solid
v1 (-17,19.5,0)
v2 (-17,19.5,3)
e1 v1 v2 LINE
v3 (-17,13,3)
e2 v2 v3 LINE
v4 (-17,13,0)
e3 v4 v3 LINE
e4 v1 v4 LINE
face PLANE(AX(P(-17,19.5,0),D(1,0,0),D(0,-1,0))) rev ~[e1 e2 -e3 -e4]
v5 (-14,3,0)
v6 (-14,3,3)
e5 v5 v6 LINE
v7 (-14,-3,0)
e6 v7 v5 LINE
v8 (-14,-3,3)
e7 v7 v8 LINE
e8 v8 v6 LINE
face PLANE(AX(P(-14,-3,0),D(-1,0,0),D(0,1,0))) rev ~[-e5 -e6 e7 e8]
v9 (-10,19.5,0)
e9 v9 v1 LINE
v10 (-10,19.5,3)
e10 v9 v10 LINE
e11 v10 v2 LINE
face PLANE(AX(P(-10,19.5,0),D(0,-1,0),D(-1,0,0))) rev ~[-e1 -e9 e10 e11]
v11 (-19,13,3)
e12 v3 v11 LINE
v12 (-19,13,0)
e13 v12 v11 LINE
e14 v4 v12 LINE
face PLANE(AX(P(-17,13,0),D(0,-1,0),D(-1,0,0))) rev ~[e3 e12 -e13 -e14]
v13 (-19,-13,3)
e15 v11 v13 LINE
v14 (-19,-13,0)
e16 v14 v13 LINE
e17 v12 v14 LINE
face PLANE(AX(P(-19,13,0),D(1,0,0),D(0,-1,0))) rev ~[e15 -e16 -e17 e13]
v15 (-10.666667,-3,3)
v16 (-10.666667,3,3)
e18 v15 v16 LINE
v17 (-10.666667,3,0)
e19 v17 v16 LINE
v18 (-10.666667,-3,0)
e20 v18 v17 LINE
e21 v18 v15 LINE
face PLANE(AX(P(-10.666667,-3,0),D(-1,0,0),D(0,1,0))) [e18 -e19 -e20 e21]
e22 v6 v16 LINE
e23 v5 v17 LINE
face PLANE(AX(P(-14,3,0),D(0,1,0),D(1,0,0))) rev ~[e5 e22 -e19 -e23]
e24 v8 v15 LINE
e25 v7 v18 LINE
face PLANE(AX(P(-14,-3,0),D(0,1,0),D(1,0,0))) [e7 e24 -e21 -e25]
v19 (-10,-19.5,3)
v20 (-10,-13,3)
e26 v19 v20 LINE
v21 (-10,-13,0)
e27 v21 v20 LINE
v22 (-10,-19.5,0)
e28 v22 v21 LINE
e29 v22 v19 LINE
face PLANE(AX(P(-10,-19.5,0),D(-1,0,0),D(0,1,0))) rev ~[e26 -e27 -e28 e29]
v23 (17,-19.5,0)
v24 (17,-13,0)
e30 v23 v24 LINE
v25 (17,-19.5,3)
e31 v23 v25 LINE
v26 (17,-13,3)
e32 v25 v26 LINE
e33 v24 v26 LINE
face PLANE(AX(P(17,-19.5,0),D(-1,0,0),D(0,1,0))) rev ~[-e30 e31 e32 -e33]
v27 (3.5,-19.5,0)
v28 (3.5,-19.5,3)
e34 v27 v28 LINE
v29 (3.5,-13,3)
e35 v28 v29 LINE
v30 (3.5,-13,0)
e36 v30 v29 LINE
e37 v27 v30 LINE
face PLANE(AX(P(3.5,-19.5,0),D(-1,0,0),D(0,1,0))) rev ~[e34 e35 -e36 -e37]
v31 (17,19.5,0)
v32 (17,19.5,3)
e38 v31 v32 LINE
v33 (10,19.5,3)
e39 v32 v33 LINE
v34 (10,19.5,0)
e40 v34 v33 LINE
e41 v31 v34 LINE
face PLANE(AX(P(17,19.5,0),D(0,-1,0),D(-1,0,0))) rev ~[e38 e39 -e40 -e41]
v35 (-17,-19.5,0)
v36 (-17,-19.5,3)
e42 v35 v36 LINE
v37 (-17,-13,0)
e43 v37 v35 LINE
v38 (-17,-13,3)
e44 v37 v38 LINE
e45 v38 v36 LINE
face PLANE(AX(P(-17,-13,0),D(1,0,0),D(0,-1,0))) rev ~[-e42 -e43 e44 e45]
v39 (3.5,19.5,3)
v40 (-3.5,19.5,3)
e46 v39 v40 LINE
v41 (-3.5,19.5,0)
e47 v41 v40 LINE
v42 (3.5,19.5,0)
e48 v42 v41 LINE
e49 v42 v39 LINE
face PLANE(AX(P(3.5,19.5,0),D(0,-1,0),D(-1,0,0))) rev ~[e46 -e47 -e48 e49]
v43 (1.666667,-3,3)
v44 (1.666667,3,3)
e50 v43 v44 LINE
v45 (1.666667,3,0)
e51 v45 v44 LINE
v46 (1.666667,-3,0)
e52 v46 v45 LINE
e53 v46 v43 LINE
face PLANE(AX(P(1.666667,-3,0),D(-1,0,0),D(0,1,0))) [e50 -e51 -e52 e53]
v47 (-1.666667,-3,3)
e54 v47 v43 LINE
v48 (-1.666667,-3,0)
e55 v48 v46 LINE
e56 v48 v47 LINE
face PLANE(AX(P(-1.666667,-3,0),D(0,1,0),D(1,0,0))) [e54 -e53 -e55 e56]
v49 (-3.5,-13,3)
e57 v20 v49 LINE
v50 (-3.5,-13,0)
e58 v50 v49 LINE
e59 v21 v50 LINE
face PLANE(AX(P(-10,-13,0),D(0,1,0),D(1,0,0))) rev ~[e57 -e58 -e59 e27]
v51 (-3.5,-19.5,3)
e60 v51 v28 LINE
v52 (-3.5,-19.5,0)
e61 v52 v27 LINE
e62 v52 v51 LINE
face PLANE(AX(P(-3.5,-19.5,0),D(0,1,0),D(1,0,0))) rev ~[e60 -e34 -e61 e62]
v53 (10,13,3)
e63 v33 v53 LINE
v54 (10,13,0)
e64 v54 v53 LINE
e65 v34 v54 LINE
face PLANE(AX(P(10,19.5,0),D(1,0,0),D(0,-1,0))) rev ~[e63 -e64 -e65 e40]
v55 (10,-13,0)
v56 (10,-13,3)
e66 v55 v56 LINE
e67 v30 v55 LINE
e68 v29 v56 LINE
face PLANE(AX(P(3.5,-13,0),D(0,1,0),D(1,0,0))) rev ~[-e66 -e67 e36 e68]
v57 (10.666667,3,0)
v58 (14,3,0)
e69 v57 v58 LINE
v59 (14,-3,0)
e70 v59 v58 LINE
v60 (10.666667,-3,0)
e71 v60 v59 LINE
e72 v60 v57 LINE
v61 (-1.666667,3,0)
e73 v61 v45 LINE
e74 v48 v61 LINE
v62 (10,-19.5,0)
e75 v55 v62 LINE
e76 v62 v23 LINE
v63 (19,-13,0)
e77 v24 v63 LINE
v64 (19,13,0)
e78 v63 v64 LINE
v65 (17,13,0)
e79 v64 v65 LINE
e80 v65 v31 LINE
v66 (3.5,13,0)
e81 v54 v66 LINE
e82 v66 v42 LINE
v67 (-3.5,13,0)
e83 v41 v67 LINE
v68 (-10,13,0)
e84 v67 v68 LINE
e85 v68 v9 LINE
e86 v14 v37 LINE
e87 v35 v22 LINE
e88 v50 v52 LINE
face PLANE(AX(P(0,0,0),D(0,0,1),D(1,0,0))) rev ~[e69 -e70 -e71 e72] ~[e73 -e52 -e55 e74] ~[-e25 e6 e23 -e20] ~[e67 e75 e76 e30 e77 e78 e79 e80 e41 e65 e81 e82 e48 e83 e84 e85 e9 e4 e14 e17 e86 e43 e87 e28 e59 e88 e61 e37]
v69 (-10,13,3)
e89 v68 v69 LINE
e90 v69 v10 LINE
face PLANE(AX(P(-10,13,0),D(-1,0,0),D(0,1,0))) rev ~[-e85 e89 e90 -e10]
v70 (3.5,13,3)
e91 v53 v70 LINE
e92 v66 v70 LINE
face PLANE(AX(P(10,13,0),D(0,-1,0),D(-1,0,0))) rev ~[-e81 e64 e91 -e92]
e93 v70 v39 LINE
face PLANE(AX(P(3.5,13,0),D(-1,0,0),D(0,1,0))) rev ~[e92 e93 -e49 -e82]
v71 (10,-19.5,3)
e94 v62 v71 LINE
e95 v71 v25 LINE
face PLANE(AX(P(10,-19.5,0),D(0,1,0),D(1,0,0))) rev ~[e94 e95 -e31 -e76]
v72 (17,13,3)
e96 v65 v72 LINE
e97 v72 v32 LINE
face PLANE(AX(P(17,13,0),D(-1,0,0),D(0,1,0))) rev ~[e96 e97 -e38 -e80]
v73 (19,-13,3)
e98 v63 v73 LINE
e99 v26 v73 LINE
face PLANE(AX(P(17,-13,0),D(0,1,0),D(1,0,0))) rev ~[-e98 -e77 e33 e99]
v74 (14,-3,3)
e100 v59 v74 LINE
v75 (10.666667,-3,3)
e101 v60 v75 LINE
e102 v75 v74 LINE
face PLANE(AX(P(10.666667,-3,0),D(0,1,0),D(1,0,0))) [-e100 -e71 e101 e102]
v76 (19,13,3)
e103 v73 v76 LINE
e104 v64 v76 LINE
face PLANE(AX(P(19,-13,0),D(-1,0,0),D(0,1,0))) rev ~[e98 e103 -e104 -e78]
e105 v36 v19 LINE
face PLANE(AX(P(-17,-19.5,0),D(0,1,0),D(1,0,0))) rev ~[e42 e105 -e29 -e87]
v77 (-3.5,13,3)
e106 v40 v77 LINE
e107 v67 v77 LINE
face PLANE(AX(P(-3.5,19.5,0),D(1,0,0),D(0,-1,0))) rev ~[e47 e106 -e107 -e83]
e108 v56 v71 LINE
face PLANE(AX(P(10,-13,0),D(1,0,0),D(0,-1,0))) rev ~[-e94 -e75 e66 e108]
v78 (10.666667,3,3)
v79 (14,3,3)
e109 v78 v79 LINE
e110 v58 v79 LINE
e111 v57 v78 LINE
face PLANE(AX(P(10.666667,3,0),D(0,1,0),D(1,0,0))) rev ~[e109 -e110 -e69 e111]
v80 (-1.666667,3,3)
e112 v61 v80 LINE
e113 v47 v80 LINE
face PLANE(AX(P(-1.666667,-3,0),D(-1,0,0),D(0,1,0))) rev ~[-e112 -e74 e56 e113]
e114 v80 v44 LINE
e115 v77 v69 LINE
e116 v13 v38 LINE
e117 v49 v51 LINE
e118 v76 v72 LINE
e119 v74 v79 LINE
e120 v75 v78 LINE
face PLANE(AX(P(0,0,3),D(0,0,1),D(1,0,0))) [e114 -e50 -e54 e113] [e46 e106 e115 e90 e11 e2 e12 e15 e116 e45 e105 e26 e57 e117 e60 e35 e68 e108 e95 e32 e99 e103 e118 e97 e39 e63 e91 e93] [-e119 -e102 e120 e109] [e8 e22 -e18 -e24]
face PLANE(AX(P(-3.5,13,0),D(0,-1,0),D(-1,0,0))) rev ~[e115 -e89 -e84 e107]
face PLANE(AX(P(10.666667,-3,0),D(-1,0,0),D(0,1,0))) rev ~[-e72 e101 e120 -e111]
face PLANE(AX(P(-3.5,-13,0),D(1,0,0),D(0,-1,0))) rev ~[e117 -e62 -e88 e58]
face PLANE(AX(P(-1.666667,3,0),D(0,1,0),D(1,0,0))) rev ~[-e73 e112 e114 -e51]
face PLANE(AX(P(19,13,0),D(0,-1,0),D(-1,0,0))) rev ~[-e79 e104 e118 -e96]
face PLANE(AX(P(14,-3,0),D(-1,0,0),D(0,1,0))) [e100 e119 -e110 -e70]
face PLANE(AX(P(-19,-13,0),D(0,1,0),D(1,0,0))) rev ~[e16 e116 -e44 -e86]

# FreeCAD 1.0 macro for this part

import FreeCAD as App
import Part
import Sketcher


def add_polygon(sketch, points):
    """Adds a closed chain of lines whose ends are joined by coincident constraints."""
    first, n = sketch.GeometryCount, len(points)
    for a, b in zip(points, points[1:] + points[:1]):
        sketch.addGeometry(Part.LineSegment(App.Vector(*a, 0), App.Vector(*b, 0)), False)
    for i in range(n):
        sketch.addConstraint(Sketcher.Constraint("Coincident", first + i, 2, first + (i + 1) % n, 1))

doc = App.newDocument("Part")
params = doc.addObject("Spreadsheet::Sheet", "Params")
for row, (alias, value) in enumerate([
    ("sketch1_width", "2 mm"),
    ("sketch1_width2", "7 mm"),
    ("sketch1_height", "26 mm"),
    ("sketch1_height2", "6 mm"),
    ("sketch1_width3", "6.5 mm"),
    ("pad1_length", "3 mm"),
], start=1):
    params.set(f"A{row}", alias)
    params.set(f"B{row}", "=" + value)
    params.setAlias(f"B{row}", alias)

body = doc.addObject("PartDesign::Body", "Body")

# Sketch on XY plane
sketch1 = body.newObject("Sketcher::SketchObject", "Sketch")
sketch1.AttachmentSupport = (doc.getObject("XY_Plane"), [""])
sketch1.MapMode = "FlatFace"
add_polygon(sketch1, [(-17, 19.5), (-17, 13), (-19, 13), (-19, -13), (-17, -13), (-17, -19.5), (-10, -19.5), (-10, -13), (-3.5, -13), (-3.5, -19.5), (3.5, -19.5), (3.5, -13), (10, -13), (10, -19.5), (17, -19.5), (17, -13), (19, -13), (19, 13), (17, 13), (17, 19.5), (10, 19.5), (10, 13), (3.5, 13), (3.5, 19.5), (-3.5, 19.5), (-3.5, 13), (-10, 13), (-10, 19.5)])  # lines 0-27
add_polygon(sketch1, [(-10.7, -3), (-14, -3), (-14, 3), (-10.7, 3)])  # lines 28-31
add_polygon(sketch1, [(1.7, -3), (-1.7, -3), (-1.7, 3), (1.7, 3)])  # lines 32-35
add_polygon(sketch1, [(14, -3), (10.7, -3), (10.7, 3), (14, 3)])  # lines 36-39
sketch1.addConstraint([
    Sketcher.Constraint("Vertical", 0),
    Sketcher.Constraint("Horizontal", 1),
    Sketcher.Constraint("Vertical", 2),
    Sketcher.Constraint("Horizontal", 3),
    Sketcher.Constraint("Vertical", 4),
    Sketcher.Constraint("Horizontal", 5),
    Sketcher.Constraint("Vertical", 6),
    Sketcher.Constraint("Horizontal", 7),
    Sketcher.Constraint("Vertical", 8),
    Sketcher.Constraint("Horizontal", 9),
    Sketcher.Constraint("Vertical", 10),
    Sketcher.Constraint("Horizontal", 11),
    Sketcher.Constraint("Vertical", 12),
    Sketcher.Constraint("Horizontal", 13),
    Sketcher.Constraint("Vertical", 14),
    Sketcher.Constraint("Horizontal", 15),
    Sketcher.Constraint("Vertical", 16),
    Sketcher.Constraint("Horizontal", 17),
    Sketcher.Constraint("Vertical", 18),
    Sketcher.Constraint("Horizontal", 19),
    Sketcher.Constraint("Vertical", 20),
    Sketcher.Constraint("Horizontal", 21),
    Sketcher.Constraint("Vertical", 22),
    Sketcher.Constraint("Horizontal", 23),
    Sketcher.Constraint("Vertical", 24),
    Sketcher.Constraint("Horizontal", 25),
    Sketcher.Constraint("Vertical", 26),
    Sketcher.Constraint("Horizontal", 27),
    Sketcher.Constraint("Horizontal", 28),
    Sketcher.Constraint("Vertical", 29),
    Sketcher.Constraint("Horizontal", 30),
    Sketcher.Constraint("Vertical", 31),
    Sketcher.Constraint("Horizontal", 32),
    Sketcher.Constraint("Vertical", 33),
    Sketcher.Constraint("Horizontal", 34),
    Sketcher.Constraint("Vertical", 35),
    Sketcher.Constraint("Horizontal", 36),
    Sketcher.Constraint("Vertical", 37),
    Sketcher.Constraint("Horizontal", 38),
    Sketcher.Constraint("Vertical", 39),
    Sketcher.Constraint("Symmetric", 0, 2, 14, 2, -1, 1),
    Sketcher.Constraint("Symmetric", 2, 2, 16, 2, -1, 1),
    Sketcher.Constraint("Symmetric", 4, 2, 18, 2, -1, 1),
    Sketcher.Constraint("Symmetric", 6, 2, 20, 2, -1, 1),
    Sketcher.Constraint("Symmetric", 8, 2, 22, 2, -1, 1),
    Sketcher.Constraint("Symmetric", 10, 2, 24, 2, -1, 1),
    Sketcher.Constraint("Symmetric", 12, 2, 26, 2, -1, 1),
    Sketcher.Constraint("Symmetric", 32, 2, 34, 2, -1, 1),
    Sketcher.Constraint("Symmetric", 30, 2, 36, 2, -1, 1),
    Sketcher.Constraint("Symmetric", 28, 2, 38, 2, -1, 1),
    Sketcher.Constraint("Symmetric", 7, 2, 10, 2, -2),
    Sketcher.Constraint("Symmetric", 5, 2, 12, 2, -2),
    Sketcher.Constraint("Symmetric", 3, 2, 14, 2, -2),
    Sketcher.Constraint("Horizontal", 3, 2, 6, 2),
    Sketcher.Constraint("Horizontal", 5, 2, 8, 2),
    Sketcher.Constraint("Horizontal", 31, 2, 32, 2),
    Sketcher.Constraint("Horizontal", 30, 2, 33, 2),
    Sketcher.Constraint("Equal", 5, 9),
    Sketcher.Constraint("Equal", 30, 32),
    Sketcher.Constraint("Equal", 25, 0),
    Sketcher.Constraint("DistanceX", 1, 2, 1, 1, 2.0),
    Sketcher.Constraint("DistanceX", 5, 1, 5, 2, 7.0),
    Sketcher.Constraint("DistanceY", 2, 2, 2, 1, 26.0),
    Sketcher.Constraint("DistanceY", 29, 1, 29, 2, 6.0),
    Sketcher.Constraint("DistanceX", 7, 1, 7, 2, 6.5),
    Sketcher.Constraint("DistanceX", 28, 2, -1, 1, 14.0),
    Sketcher.Constraint("DistanceX", 31, 2, 32, 2, 9.0),
])
sketch1.setExpression("Constraints[100]", "Params.sketch1_width")
sketch1.setExpression("Constraints[101]", "Params.sketch1_width2")
sketch1.setExpression("Constraints[102]", "Params.sketch1_height")
sketch1.setExpression("Constraints[103]", "Params.sketch1_height2")
sketch1.setExpression("Constraints[104]", "Params.sketch1_width3")
pad1 = body.newObject("PartDesign::Pad", "Pad")
pad1.Profile = sketch1
pad1.setExpression("Length", "Params.pad1_length")

doc.recompute()
